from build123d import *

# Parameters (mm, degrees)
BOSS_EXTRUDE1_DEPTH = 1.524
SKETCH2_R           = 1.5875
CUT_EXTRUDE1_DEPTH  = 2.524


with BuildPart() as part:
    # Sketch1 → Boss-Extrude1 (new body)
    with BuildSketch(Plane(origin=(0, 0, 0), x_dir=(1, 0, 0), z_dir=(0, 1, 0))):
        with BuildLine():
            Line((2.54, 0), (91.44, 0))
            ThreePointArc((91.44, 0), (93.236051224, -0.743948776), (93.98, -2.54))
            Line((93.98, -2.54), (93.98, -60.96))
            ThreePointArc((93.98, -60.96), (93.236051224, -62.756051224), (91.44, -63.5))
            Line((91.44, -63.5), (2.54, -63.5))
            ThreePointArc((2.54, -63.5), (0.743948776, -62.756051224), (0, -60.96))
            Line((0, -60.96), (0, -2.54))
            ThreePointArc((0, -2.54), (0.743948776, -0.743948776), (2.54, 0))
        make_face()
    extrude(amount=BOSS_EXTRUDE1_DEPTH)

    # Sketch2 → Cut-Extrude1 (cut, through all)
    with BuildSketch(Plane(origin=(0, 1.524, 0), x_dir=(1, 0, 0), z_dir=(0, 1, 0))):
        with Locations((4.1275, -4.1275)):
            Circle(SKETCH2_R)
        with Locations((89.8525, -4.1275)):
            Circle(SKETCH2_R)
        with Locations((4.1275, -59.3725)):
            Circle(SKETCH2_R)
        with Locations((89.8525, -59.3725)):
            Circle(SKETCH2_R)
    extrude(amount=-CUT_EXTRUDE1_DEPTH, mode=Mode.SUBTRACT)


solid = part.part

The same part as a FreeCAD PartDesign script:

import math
import FreeCAD as App
import Part
import Sketcher

V = App.Vector
Q = App.Units.Quantity

doc = App.newDocument("Part")
body = doc.addObject("PartDesign::Body", "Body")

# Sketch on XZ plane
sketch1 = body.newObject("Sketcher::SketchObject", "Sketch")
sketch1.AttachmentSupport = (doc.getObject("XZ_Plane"), [""])
sketch1.MapMode = "FlatFace"
sketch1.addGeometry(Part.LineSegment(V(91.44, 0, 0), V(2.54, 0, 0)), False)
sketch1.addGeometry(Part.ArcOfCircle(Part.Circle(V(2.54, 2.54, 0), V(0, 0, 1), 2.54), math.radians(-180), math.radians(-90)), False)
sketch1.addGeometry(Part.LineSegment(V(0, 2.54, 0), V(0, 60.96, 0)), False)
sketch1.addGeometry(Part.ArcOfCircle(Part.Circle(V(2.54, 60.96, 0), V(0, 0, 1), 2.54), math.radians(90), math.radians(180)), False)
sketch1.addGeometry(Part.LineSegment(V(2.54, 63.5, 0), V(91.44, 63.5, 0)), False)
sketch1.addGeometry(Part.ArcOfCircle(Part.Circle(V(91.44, 60.96, 0), V(0, 0, 1), 2.54), math.radians(0), math.radians(90)), False)
sketch1.addGeometry(Part.LineSegment(V(93.98, 60.96, 0), V(93.98, 2.54, 0)), False)
sketch1.addGeometry(Part.ArcOfCircle(Part.Circle(V(91.44, 2.54, 0), V(0, 0, 1), 2.54), math.radians(-90), math.radians(0)), False)
sketch1.addConstraint(Sketcher.Constraint("Tangent", 0, 2, 1, 2))
sketch1.addConstraint(Sketcher.Constraint("Tangent", 1, 1, 2, 1))
sketch1.addConstraint(Sketcher.Constraint("Tangent", 2, 2, 3, 2))
sketch1.addConstraint(Sketcher.Constraint("Tangent", 3, 1, 4, 1))
sketch1.addConstraint(Sketcher.Constraint("Tangent", 4, 2, 5, 2))
sketch1.addConstraint(Sketcher.Constraint("Tangent", 5, 1, 6, 1))
sketch1.addConstraint(Sketcher.Constraint("Tangent", 6, 2, 7, 2))
sketch1.addConstraint(Sketcher.Constraint("Tangent", 7, 1, 0, 1))
sketch1.addConstraint(Sketcher.Constraint("Horizontal", 0))
sketch1.addConstraint(Sketcher.Constraint("Vertical", 2))
sketch1.addConstraint(Sketcher.Constraint("Horizontal", 4))
sketch1.addConstraint(Sketcher.Constraint("Vertical", 6))
sketch1.addConstraint(Sketcher.Constraint("Equal", 1, 3))
sketch1.addConstraint(Sketcher.Constraint("Equal", 3, 5))
sketch1.addConstraint(Sketcher.Constraint("Equal", 5, 7))
sketch1.addConstraint(Sketcher.Constraint("PointOnObject", 0, 2, -1))
sketch1.addConstraint(Sketcher.Constraint("PointOnObject", 1, 1, -2))
sketch1.addConstraint(Sketcher.Constraint("Radius", 1, Q("0.1 in")))
sketch1.addConstraint(Sketcher.Constraint("DistanceX", 0, 2, 0, 1, Q("3.5 in")))
sketch1.addConstraint(Sketcher.Constraint("DistanceY", 2, 1, 2, 2, Q("2.3 in")))
pad1 = body.newObject("PartDesign::Pad", "Pad")
pad1.Profile = sketch1
pad1.Length = Q("0.06 in")
pad1.Reversed = True

# Sketch on XZ plane
sketch2 = body.newObject("Sketcher::SketchObject", "Sketch001")
sketch2.AttachmentSupport = (doc.getObject("XZ_Plane"), [""])
sketch2.MapMode = "FlatFace"
sketch2.AttachmentOffset = App.Placement(V(0, 0, -0.06 * 25.4), App.Rotation())
sketch2.addGeometry(Part.Circle(V(4.1275, 4.1275, 0), V(0, 0, 1), 1.5875), False)
sketch2.addGeometry(Part.Circle(V(89.8525, 4.1275, 0), V(0, 0, 1), 1.5875), False)
sketch2.addGeometry(Part.Circle(V(4.1275, 59.3725, 0), V(0, 0, 1), 1.5875), False)
sketch2.addGeometry(Part.Circle(V(89.8525, 59.3725, 0), V(0, 0, 1), 1.5875), False)
sketch2.addConstraint(Sketcher.Constraint("Equal", 0, 1))
sketch2.addConstraint(Sketcher.Constraint("Equal", 1, 2))
sketch2.addConstraint(Sketcher.Constraint("Equal", 2, 3))
sketch2.addConstraint(Sketcher.Constraint("Horizontal", 0, 3, 1, 3))
sketch2.addConstraint(Sketcher.Constraint("Horizontal", 2, 3, 3, 3))
sketch2.addConstraint(Sketcher.Constraint("Vertical", 0, 3, 2, 3))
sketch2.addConstraint(Sketcher.Constraint("Vertical", 1, 3, 3, 3))
sketch2.addConstraint(Sketcher.Constraint("Diameter", 0, Q("0.125 in")))
sketch2.addConstraint(Sketcher.Constraint("DistanceX", 0, 3, 1, 3, Q("3.375 in")))
sketch2.addConstraint(Sketcher.Constraint("DistanceY", 0, 3, 2, 3, Q("2.175 in")))
sketch2.addConstraint(Sketcher.Constraint("DistanceX", -1, 1, 0, 3, Q("0.1625 in")))
sketch2.addConstraint(Sketcher.Constraint("DistanceY", -1, 1, 0, 3, Q("0.1625 in")))
pocket1 = body.newObject("PartDesign::Pocket", "Pocket")
pocket1.Profile = sketch2
pocket1.Type = "ThroughAll"
pocket1.Reversed = True

doc.recompute()
